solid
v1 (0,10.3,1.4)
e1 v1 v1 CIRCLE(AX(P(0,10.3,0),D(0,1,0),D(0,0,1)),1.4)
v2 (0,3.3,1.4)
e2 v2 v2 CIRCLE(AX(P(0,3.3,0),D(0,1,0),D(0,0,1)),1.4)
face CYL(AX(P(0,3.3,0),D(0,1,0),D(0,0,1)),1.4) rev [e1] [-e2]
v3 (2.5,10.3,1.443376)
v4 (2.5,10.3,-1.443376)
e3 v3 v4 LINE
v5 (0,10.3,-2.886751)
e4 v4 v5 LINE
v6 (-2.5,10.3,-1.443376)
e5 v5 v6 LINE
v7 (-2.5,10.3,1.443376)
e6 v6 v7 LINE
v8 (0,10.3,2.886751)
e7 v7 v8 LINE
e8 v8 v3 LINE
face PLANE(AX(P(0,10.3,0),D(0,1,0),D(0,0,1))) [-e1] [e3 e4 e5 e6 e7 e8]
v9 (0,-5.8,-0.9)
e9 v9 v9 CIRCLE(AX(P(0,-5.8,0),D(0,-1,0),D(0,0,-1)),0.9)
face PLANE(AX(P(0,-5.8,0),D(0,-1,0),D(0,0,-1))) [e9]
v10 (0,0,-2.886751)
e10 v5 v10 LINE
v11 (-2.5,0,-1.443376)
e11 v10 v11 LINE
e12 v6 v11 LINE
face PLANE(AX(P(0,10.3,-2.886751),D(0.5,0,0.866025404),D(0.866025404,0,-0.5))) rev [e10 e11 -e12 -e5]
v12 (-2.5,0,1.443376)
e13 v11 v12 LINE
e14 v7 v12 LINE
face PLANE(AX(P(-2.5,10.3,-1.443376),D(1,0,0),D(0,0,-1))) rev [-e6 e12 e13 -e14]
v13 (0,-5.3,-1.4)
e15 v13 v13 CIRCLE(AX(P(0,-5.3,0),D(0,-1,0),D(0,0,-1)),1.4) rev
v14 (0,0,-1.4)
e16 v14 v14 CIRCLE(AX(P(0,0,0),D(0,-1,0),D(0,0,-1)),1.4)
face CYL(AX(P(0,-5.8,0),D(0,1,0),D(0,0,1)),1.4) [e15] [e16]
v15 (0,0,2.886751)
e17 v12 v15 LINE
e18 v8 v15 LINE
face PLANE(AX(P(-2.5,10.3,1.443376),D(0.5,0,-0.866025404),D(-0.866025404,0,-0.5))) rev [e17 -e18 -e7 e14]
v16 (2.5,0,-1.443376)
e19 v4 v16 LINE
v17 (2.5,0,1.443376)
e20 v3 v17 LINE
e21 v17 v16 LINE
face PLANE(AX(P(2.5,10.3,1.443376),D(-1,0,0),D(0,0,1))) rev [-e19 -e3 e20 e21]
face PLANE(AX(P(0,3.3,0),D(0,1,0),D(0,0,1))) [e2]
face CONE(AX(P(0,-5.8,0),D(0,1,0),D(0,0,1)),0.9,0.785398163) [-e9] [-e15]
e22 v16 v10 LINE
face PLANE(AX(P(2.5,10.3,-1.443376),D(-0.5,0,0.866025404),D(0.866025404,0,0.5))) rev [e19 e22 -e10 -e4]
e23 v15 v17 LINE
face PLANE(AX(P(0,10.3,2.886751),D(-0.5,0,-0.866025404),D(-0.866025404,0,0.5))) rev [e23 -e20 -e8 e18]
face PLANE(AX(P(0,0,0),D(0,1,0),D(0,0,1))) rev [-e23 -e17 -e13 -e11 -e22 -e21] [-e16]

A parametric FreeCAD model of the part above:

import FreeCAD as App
import Part
import Sketcher
from FreeCAD import Vector
Q = App.Units.Quantity


def edges_at(feature, points):
    """Names of the edges that pass closest to the given points."""
    edges = feature.Shape.Edges
    near = lambda p: min(range(len(edges)), key=lambda i: edges[i].distToShape(Part.Vertex(*p))[0])
    return sorted({f"Edge{near(p) + 1}" for p in points})

doc = App.newDocument("Part")
body = doc.addObject("PartDesign::Body", "Body")

sketch1 = doc.addObject("Sketcher::SketchObject", "Sketch")
body.addObject(sketch1)
sketch1.AttachmentSupport = (doc.XZ_Plane, [""])
sketch1.MapMode = "FlatFace"
sketch1.addGeometry(Part.LineSegment(Vector(0, -2.9, 0), Vector(-2.5, -1.4, 0)), False)
sketch1.addGeometry(Part.LineSegment(Vector(-2.5, -1.4, 0), Vector(-2.5, 1.4, 0)), False)
sketch1.addGeometry(Part.LineSegment(Vector(-2.5, 1.4, 0), Vector(0, 2.9, 0)), False)
sketch1.addGeometry(Part.LineSegment(Vector(0, 2.9, 0), Vector(2.5, 1.4, 0)), False)
sketch1.addGeometry(Part.LineSegment(Vector(2.5, 1.4, 0), Vector(2.5, -1.4, 0)), False)
sketch1.addGeometry(Part.LineSegment(Vector(2.5, -1.4, 0), Vector(0, -2.9, 0)), False)
sketch1.addConstraint(Sketcher.Constraint("Coincident", 0, 2, 1, 1))
sketch1.addConstraint(Sketcher.Constraint("Coincident", 1, 2, 2, 1))
sketch1.addConstraint(Sketcher.Constraint("Coincident", 2, 2, 3, 1))
sketch1.addConstraint(Sketcher.Constraint("Coincident", 3, 2, 4, 1))
sketch1.addConstraint(Sketcher.Constraint("Coincident", 4, 2, 5, 1))
sketch1.addConstraint(Sketcher.Constraint("Coincident", 5, 2, 0, 1))
sketch1.addConstraint(Sketcher.Constraint("Vertical", 1))
sketch1.addConstraint(Sketcher.Constraint("Vertical", 4))
sketch1.addConstraint(Sketcher.Constraint("Symmetric", 0, 2, 3, 2, -1, 1))
sketch1.addConstraint(Sketcher.Constraint("Symmetric", 2, 2, 5, 2, -1, 1))
sketch1.addConstraint(Sketcher.Constraint("PointOnObject", 2, 2, -2))
sketch1.addConstraint(Sketcher.Constraint("Parallel", 2, 5))
sketch1.addConstraint(Sketcher.Constraint("Horizontal", 1, 2, 3, 2))
sketch1.addConstraint(Sketcher.Constraint("Angle", 0, Q("150 deg")))
sketch1.addConstraint(Sketcher.Constraint("DistanceX", 1, 2, 3, 2, Q("5 mm")))
sketch1.addConstraint(Sketcher.Constraint("DistanceY", 1, 1, 1, 2, Q("2.886751 mm")))
pad1 = doc.addObject("PartDesign::Pad", "Pad")
body.addObject(pad1)
pad1.Profile = sketch1
pad1.Length = 10.3
pad1.Reversed = True

sketch2 = doc.addObject("Sketcher::SketchObject", "Sketch001")
body.addObject(sketch2)
sketch2.AttachmentSupport = (doc.XZ_Plane, [""])
sketch2.MapMode = "FlatFace"
sketch2.addGeometry(Part.Circle(Vector(0, 0, 0), Vector(0, 0, 1), 1.4), False)
sketch2.addConstraint(Sketcher.Constraint("Coincident", 0, 3, -1, 1))
sketch2.addConstraint(Sketcher.Constraint("Diameter", 0, Q("2.8 mm")))
pad2 = doc.addObject("PartDesign::Pad", "Pad001")
body.addObject(pad2)
pad2.Profile = sketch2
pad2.Length = 5.8
doc.recompute()

chamfer = doc.addObject("PartDesign::Chamfer", "Chamfer")
body.addObject(chamfer)
chamfer.Base = (pad2, edges_at(pad2, [(0, -5.8, 1.4)]))
chamfer.Size = 0.5

sketch3 = doc.addObject("Sketcher::SketchObject", "Sketch002")
body.addObject(sketch3)
sketch3.AttachmentSupport = (doc.XZ_Plane, [""])
sketch3.MapMode = "FlatFace"
sketch3.AttachmentOffset = App.Placement(Vector(0, 0, -10.3), App.Rotation())
sketch3.addGeometry(Part.Circle(Vector(0, 0, 0), Vector(0, 0, 1), 1.4), False)
sketch3.addConstraint(Sketcher.Constraint("Coincident", 0, 3, -1, 1))
sketch3.addConstraint(Sketcher.Constraint("Diameter", 0, Q("2.8 mm")))
pocket1 = doc.addObject("PartDesign::Pocket", "Pocket")
body.addObject(pocket1)
pocket1.Profile = sketch3
pocket1.Length = 7
pocket1.Reversed = True

doc.recompute()
